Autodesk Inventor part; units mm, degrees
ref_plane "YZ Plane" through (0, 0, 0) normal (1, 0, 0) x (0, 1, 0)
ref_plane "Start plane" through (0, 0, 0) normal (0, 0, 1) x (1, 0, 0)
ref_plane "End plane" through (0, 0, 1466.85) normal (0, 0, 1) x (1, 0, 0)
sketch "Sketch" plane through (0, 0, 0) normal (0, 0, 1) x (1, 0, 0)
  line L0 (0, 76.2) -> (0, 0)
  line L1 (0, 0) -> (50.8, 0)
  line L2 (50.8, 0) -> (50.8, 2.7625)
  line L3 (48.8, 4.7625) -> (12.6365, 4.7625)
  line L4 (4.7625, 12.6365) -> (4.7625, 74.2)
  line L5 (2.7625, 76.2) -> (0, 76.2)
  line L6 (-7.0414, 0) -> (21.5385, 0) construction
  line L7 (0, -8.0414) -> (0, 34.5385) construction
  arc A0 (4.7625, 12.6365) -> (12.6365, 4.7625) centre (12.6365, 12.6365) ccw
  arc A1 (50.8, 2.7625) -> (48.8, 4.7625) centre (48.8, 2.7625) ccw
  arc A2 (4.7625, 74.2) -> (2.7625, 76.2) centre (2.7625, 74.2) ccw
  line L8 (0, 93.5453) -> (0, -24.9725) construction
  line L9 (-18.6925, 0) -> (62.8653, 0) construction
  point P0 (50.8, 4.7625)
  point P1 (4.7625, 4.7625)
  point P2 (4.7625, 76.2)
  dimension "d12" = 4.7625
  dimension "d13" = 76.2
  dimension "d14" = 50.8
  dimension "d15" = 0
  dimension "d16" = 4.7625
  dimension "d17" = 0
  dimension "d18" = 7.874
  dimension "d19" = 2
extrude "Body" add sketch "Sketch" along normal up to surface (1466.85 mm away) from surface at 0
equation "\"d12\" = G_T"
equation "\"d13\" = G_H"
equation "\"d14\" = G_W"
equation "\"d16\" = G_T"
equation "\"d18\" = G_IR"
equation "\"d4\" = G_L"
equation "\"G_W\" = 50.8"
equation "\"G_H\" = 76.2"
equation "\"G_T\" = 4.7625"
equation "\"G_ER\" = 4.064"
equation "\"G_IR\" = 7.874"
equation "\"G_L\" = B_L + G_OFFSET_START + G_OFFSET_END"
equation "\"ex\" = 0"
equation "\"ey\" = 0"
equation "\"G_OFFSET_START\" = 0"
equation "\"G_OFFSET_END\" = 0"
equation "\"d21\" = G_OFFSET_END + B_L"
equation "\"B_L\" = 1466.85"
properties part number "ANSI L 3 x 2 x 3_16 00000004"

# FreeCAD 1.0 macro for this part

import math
import FreeCAD as App
import Part
import Sketcher

V = App.Vector
Q = App.Units.Quantity

doc = App.newDocument("Part")
body = doc.addObject("PartDesign::Body", "Body")

sketch1 = body.newObject("Sketcher::SketchObject", "Sketch")
sketch1.AttachmentSupport = (doc.getObject("XY_Plane"), [""])
sketch1.MapMode = "FlatFace"
sketch1.addGeometry(Part.LineSegment(V(2.7625, 76.2, 0), V(0, 76.2, 0)), False)
sketch1.addGeometry(Part.LineSegment(V(0, 76.2, 0), V(0, 0, 0)), False)
sketch1.addGeometry(Part.LineSegment(V(0, 0, 0), V(50.8, 0, 0)), False)
sketch1.addGeometry(Part.LineSegment(V(50.8, 0, 0), V(50.8, 2.7625, 0)), False)
sketch1.addGeometry(Part.ArcOfCircle(Part.Circle(V(48.8, 2.7625, 0), V(0, 0, 1), 2), math.radians(0), math.radians(90)), False)
sketch1.addGeometry(Part.LineSegment(V(48.8, 4.7625, 0), V(12.6365, 4.7625, 0)), False)
sketch1.addGeometry(Part.ArcOfCircle(Part.Circle(V(12.6365, 12.6365, 0), V(0, 0, 1), 7.874), math.radians(180), math.radians(270)), False)
sketch1.addGeometry(Part.LineSegment(V(4.7625, 12.6365, 0), V(4.7625, 74.2, 0)), False)
sketch1.addGeometry(Part.ArcOfCircle(Part.Circle(V(2.7625, 74.2, 0), V(0, 0, 1), 2), math.radians(0), math.radians(90)), False)
sketch1.addConstraint(Sketcher.Constraint("Coincident", 0, 2, 1, 1))
sketch1.addConstraint(Sketcher.Constraint("Coincident", 1, 2, 2, 1))
sketch1.addConstraint(Sketcher.Constraint("Coincident", 2, 2, 3, 1))
sketch1.addConstraint(Sketcher.Constraint("Tangent", 3, 2, 4, 1))
sketch1.addConstraint(Sketcher.Constraint("Tangent", 4, 2, 5, 1))
sketch1.addConstraint(Sketcher.Constraint("Tangent", 5, 2, 6, 2))
sketch1.addConstraint(Sketcher.Constraint("Tangent", 6, 1, 7, 1))
sketch1.addConstraint(Sketcher.Constraint("Tangent", 7, 2, 8, 1))
sketch1.addConstraint(Sketcher.Constraint("Tangent", 8, 2, 0, 1))
sketch1.addConstraint(Sketcher.Constraint("Horizontal", 0))
sketch1.addConstraint(Sketcher.Constraint("Vertical", 1))
sketch1.addConstraint(Sketcher.Constraint("Horizontal", 2))
sketch1.addConstraint(Sketcher.Constraint("Vertical", 3))
sketch1.addConstraint(Sketcher.Constraint("Horizontal", 5))
sketch1.addConstraint(Sketcher.Constraint("Vertical", 7))
sketch1.addConstraint(Sketcher.Constraint("Coincident", 1, 2, -1, 1))
sketch1.addConstraint(Sketcher.Constraint("Equal", 4, 8))
sketch1.addConstraint(Sketcher.Constraint("Equal", 0, 3))
sketch1.addConstraint(Sketcher.Constraint("DistanceX", 2, 1, 2, 2, Q("2 in")))
sketch1.addConstraint(Sketcher.Constraint("DistanceY", 1, 2, 1, 1, Q("3 in")))
sketch1.addConstraint(Sketcher.Constraint("Radius", 6, Q("0.31 in")))
sketch1.addConstraint(Sketcher.Constraint("Radius", 4, 2.0))
sketch1.addConstraint(Sketcher.Constraint("DistanceY", -1, 1, 4, 2, Q("0.1875 in")))
pad1 = body.newObject("PartDesign::Pad", "Pad")
pad1.Profile = sketch1
pad1.Length = Q("57.75 in")

doc.recompute()
